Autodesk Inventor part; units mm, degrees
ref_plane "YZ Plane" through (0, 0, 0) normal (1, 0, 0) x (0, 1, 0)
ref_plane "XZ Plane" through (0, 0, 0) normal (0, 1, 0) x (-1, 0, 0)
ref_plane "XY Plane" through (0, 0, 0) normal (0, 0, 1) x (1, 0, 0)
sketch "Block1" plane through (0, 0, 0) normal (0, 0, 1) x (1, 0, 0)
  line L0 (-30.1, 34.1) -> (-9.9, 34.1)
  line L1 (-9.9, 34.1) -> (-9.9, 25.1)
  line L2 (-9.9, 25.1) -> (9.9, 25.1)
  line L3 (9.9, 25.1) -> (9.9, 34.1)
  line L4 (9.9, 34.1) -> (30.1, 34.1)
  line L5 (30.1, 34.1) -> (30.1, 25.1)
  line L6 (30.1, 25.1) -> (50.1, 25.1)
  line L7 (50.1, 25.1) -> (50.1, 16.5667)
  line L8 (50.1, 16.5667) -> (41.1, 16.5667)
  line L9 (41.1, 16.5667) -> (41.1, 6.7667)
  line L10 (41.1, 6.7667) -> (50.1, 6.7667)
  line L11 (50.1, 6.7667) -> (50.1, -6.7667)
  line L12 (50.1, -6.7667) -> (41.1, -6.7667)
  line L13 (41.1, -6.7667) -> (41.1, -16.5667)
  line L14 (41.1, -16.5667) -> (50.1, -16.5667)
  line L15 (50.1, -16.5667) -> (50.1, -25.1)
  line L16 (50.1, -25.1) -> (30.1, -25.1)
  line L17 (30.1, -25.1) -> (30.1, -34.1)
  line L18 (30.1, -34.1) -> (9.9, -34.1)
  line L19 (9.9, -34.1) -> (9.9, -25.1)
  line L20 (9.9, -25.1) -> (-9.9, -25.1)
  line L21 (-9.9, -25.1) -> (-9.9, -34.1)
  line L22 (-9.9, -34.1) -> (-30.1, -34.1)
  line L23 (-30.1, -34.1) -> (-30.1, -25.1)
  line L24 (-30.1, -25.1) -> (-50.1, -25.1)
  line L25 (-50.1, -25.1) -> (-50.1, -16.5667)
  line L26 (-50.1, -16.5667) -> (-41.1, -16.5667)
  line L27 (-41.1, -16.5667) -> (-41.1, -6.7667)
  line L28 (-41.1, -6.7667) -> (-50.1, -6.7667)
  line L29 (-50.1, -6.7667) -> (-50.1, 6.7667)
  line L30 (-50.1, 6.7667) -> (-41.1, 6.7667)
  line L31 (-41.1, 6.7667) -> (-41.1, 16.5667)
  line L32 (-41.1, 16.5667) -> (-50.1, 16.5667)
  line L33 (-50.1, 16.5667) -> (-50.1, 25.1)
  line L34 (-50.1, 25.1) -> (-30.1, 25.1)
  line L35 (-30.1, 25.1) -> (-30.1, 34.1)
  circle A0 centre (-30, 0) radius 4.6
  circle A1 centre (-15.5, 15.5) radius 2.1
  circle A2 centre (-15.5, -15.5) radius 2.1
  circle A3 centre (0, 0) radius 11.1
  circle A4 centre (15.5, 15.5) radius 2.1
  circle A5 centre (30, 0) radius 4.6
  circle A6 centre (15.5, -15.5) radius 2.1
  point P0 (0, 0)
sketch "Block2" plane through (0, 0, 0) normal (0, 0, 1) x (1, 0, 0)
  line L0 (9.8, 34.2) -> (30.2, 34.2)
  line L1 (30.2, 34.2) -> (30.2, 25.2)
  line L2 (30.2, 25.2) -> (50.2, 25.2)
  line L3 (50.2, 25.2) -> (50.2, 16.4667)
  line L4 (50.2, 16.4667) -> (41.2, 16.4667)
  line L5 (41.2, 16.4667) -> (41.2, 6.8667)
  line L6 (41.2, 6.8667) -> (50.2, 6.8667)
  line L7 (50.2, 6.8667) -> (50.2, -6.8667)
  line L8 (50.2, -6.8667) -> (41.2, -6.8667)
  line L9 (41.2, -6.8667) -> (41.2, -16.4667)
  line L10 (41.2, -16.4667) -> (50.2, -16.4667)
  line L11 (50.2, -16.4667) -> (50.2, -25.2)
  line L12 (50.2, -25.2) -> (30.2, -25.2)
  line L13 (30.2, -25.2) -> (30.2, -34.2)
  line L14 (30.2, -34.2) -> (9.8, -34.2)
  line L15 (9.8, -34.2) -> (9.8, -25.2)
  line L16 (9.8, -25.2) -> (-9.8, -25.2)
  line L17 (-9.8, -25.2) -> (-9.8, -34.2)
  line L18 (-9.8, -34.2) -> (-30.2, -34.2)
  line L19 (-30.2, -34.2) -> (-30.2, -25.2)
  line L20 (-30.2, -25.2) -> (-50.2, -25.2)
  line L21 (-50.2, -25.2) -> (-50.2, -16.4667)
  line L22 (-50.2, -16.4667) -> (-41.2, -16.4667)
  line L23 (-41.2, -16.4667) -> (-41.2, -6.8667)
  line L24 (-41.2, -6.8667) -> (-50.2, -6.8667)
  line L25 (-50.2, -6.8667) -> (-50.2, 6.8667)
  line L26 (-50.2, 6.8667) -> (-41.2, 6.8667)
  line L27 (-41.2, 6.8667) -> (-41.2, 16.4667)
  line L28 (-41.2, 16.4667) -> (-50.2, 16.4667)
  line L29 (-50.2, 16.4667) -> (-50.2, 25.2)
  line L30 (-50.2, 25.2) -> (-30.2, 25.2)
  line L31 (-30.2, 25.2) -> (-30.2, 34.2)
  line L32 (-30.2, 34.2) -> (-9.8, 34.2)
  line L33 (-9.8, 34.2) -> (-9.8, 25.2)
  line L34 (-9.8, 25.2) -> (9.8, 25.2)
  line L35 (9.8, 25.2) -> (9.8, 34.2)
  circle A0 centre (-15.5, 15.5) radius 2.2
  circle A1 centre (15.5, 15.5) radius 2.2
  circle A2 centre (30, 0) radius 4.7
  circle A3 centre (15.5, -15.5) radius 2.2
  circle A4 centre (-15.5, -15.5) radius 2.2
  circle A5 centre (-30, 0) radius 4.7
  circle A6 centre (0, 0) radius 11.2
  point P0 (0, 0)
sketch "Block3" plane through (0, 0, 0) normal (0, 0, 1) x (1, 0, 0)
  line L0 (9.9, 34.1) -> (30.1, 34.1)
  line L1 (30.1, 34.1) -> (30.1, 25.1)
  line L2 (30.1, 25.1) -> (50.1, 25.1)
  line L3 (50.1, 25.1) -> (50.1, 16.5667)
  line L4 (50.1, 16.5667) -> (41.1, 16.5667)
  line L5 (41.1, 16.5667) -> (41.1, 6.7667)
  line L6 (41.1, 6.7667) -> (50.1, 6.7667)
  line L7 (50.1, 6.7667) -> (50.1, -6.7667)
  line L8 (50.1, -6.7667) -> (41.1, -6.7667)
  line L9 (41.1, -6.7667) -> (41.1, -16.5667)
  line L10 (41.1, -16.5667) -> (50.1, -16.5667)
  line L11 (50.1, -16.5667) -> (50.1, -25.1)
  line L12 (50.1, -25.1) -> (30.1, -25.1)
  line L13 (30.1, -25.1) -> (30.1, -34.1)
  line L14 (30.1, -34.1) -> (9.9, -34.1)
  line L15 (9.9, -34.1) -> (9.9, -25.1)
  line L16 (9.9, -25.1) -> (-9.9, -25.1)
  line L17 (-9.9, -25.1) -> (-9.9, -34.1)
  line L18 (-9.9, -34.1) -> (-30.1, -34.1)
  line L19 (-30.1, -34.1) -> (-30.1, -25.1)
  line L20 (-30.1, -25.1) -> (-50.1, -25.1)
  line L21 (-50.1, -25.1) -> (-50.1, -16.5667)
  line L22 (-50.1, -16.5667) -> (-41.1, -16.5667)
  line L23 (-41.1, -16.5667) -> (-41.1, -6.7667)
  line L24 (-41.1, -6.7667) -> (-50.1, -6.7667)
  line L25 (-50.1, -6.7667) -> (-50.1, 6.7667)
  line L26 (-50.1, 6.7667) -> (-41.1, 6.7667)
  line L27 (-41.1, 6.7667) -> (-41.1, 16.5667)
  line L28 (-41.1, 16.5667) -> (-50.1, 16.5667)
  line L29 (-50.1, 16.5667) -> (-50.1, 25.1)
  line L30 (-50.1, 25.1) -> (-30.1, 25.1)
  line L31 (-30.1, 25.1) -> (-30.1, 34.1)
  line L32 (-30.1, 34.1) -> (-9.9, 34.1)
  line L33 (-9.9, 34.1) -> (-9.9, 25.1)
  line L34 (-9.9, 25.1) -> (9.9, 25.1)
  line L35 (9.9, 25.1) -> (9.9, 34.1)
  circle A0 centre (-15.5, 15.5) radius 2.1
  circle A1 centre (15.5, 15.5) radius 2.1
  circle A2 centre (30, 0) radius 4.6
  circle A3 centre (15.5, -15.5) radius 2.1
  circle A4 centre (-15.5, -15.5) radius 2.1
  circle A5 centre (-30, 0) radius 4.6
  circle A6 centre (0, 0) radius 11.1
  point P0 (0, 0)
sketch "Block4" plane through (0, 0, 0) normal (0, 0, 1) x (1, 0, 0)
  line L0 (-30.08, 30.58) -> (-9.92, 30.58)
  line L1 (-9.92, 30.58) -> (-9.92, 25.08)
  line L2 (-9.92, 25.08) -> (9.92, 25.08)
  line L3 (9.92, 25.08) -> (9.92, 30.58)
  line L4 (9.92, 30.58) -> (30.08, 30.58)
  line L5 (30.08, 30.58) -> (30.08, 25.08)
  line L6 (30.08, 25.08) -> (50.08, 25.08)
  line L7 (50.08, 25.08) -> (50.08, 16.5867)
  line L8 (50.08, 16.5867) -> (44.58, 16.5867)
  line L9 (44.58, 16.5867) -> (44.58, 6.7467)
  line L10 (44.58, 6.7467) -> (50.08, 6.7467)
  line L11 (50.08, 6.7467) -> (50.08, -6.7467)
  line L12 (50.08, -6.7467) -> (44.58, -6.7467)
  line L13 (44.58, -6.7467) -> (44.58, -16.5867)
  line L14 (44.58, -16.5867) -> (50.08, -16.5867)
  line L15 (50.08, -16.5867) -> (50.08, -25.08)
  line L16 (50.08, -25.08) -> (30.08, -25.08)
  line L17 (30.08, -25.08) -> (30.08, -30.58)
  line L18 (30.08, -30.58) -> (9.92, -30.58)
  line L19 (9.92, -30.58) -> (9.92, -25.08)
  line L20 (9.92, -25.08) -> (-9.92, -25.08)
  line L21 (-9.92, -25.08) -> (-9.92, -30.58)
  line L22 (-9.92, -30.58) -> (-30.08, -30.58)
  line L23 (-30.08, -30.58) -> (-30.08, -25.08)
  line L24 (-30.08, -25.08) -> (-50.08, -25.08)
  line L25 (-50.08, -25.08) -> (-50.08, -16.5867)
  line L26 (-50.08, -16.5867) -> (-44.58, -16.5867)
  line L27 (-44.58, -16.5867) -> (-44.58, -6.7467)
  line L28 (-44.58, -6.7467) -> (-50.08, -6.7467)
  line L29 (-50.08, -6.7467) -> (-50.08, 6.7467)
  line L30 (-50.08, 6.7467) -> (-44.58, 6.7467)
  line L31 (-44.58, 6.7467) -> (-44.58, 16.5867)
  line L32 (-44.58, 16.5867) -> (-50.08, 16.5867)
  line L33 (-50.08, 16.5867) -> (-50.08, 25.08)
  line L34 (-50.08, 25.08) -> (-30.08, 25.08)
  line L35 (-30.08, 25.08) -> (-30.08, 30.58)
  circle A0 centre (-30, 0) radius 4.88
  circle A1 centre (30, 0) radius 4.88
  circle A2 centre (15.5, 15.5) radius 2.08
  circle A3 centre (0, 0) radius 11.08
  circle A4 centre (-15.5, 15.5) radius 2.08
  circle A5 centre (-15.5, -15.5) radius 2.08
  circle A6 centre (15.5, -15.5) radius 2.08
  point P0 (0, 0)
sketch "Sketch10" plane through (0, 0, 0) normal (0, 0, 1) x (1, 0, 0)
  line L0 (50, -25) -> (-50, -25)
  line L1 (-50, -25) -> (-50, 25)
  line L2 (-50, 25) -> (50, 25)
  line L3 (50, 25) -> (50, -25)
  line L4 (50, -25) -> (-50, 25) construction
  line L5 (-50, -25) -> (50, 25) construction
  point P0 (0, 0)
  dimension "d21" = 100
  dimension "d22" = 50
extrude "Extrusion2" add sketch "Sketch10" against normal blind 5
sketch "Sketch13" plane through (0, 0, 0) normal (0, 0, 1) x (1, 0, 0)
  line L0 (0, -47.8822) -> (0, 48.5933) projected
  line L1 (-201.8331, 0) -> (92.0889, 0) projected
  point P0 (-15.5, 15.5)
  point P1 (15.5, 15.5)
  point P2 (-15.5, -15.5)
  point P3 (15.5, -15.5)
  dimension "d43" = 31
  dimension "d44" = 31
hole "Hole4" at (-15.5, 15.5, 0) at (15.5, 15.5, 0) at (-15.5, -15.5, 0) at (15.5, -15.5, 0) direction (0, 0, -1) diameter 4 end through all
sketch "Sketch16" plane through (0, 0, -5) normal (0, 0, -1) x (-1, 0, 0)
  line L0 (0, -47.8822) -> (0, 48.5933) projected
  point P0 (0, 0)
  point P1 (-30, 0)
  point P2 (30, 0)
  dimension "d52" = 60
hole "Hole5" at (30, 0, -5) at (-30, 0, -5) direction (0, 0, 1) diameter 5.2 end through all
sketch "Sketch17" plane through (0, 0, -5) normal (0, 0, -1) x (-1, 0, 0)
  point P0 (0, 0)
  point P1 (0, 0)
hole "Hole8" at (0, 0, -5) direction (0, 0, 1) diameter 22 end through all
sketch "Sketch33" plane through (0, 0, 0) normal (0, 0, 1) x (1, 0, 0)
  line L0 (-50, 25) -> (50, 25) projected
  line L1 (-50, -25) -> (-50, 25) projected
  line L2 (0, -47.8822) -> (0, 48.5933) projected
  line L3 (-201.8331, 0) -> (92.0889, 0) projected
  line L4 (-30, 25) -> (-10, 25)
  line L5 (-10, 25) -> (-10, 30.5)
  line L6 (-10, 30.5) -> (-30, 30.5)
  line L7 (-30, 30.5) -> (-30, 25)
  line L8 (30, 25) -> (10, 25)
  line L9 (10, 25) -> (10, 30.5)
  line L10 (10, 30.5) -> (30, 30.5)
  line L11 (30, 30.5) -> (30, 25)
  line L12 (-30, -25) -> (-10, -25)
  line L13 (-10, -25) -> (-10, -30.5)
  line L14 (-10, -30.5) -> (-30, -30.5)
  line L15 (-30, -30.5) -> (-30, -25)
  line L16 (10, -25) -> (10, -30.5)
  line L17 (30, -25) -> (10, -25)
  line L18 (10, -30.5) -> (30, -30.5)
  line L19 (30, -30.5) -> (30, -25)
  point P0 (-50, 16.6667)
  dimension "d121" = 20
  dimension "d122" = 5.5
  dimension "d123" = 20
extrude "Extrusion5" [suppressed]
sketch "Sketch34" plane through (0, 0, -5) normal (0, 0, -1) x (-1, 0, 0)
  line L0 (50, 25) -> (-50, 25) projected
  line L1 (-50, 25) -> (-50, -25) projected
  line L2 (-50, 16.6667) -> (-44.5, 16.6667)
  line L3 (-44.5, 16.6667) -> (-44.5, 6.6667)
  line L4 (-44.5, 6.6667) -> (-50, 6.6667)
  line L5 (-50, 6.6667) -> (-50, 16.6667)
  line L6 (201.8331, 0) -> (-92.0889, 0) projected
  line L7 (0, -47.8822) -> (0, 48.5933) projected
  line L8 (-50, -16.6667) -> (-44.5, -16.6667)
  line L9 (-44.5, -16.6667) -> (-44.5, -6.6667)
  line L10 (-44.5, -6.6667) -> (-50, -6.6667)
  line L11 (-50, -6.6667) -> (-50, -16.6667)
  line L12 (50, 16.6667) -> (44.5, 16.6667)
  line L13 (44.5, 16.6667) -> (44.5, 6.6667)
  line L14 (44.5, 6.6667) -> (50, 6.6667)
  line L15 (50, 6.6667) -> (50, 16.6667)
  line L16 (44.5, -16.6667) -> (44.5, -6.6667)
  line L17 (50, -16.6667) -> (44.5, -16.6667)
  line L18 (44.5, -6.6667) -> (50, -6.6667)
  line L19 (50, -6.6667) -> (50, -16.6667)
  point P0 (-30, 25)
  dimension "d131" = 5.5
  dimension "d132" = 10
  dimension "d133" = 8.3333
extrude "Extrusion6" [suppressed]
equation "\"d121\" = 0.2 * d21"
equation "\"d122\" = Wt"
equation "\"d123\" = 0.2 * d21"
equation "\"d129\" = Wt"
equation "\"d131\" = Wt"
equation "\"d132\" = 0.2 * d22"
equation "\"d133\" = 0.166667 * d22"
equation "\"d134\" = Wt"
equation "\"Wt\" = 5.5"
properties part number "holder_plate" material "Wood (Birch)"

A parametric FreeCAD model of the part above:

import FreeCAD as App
import Part
import Sketcher
from FreeCAD import Vector
Q = App.Units.Quantity

doc = App.newDocument("Part")
params = doc.addObject("Spreadsheet::Sheet", "Params")
for row, (alias, value) in enumerate([
    ("sketch1_width", "100 mm"),
    ("sketch1_height", "50 mm"),
    ("pad1_length", "5 mm"),
    ("sketch2_diameter", "4 mm"),
    ("hole_diameter", "4 mm"),
    ("sketch3_diameter", "5.2 mm"),
    ("hole2_diameter", "5.2 mm"),
    ("sketch4_diameter", "22 mm"),
    ("hole3_diameter", "22 mm"),
], start=1):
    params.set(f"A{row}", alias)
    params.set(f"B{row}", "=" + value)
    params.setAlias(f"B{row}", alias)

body = doc.addObject("PartDesign::Body", "Body")

# Sketch on XY plane
sketch1 = body.newObject("Sketcher::SketchObject", "Sketch")
sketch1.AttachmentSupport = (doc.getObject("XY_Plane"), [""])
sketch1.MapMode = "FlatFace"
sketch1.addGeometry([
    Part.LineSegment(Vector(-50, -25, 0), Vector(50, -25, 0)),
    Part.LineSegment(Vector(50, -25, 0), Vector(50, 25, 0)),
    Part.LineSegment(Vector(50, 25, 0), Vector(-50, 25, 0)),
    Part.LineSegment(Vector(-50, 25, 0), Vector(-50, -25, 0)),
], False)
sketch1.addConstraint([
    Sketcher.Constraint("Coincident", 0, 2, 1, 1),
    Sketcher.Constraint("Coincident", 1, 2, 2, 1),
    Sketcher.Constraint("Coincident", 2, 2, 3, 1),
    Sketcher.Constraint("Coincident", 3, 2, 0, 1),
    Sketcher.Constraint("Horizontal", 0),
    Sketcher.Constraint("Vertical", 1),
    Sketcher.Constraint("Horizontal", 2),
    Sketcher.Constraint("Vertical", 3),
    Sketcher.Constraint("Symmetric", 0, 2, 2, 2, -1, 1),
    Sketcher.Constraint("DistanceX", 0, 1, 0, 2, Q("100 mm")),
    Sketcher.Constraint("DistanceY", 1, 1, 1, 2, Q("50 mm")),
])
sketch1.setExpression("Constraints[9]", "Params.sketch1_width")
sketch1.setExpression("Constraints[10]", "Params.sketch1_height")
pad1 = body.newObject("PartDesign::Pad", "Pad")
pad1.Profile = sketch1
pad1.setExpression("Length", "Params.pad1_length")
pad1.Reversed = True

# Sketch on XY plane
sketch2 = body.newObject("Sketcher::SketchObject", "Sketch001")
sketch2.AttachmentSupport = (doc.getObject("XY_Plane"), [""])
sketch2.MapMode = "FlatFace"
sketch2.addGeometry([
    Part.Circle(Vector(-15.5, 15.5, 0), Vector(0, 0, 1), 2),
    Part.Circle(Vector(15.5, 15.5, 0), Vector(0, 0, 1), 2),
    Part.Circle(Vector(-15.5, -15.5, 0), Vector(0, 0, 1), 2),
    Part.Circle(Vector(15.5, -15.5, 0), Vector(0, 0, 1), 2),
], False)
sketch2.addConstraint([
    Sketcher.Constraint("Equal", 0, 1),
    Sketcher.Constraint("Equal", 1, 2),
    Sketcher.Constraint("Equal", 2, 3),
    Sketcher.Constraint("Symmetric", 1, 3, 2, 3, -1, 1),
    Sketcher.Constraint("Symmetric", 0, 3, 3, 3, -1, 1),
    Sketcher.Constraint("Symmetric", 0, 3, 1, 3, -2),
    Sketcher.Constraint("Diameter", 0, Q("4 mm")),
    Sketcher.Constraint("DistanceX", 0, 3, 1, 3, Q("31 mm")),
    Sketcher.Constraint("DistanceY", 2, 3, 0, 3, Q("31 mm")),
])
sketch2.setExpression("Constraints[6]", "Params.sketch2_diameter")
doc.recompute()
hole = body.newObject("PartDesign::Hole", "Hole")
hole.Profile = sketch2
hole.ThreadType = "None"
hole.setExpression("Diameter", "Params.hole_diameter")
hole.DepthType = "ThroughAll"

# Sketch on XY plane
sketch3 = body.newObject("Sketcher::SketchObject", "Sketch002")
sketch3.AttachmentSupport = (doc.getObject("XY_Plane"), [""])
sketch3.MapMode = "FlatFace"
sketch3.AttachmentOffset = App.Placement(Vector(0, 0, -5), App.Rotation())
sketch3.addGeometry([
    Part.Circle(Vector(30, 0, 0), Vector(0, 0, 1), 2.6),
    Part.Circle(Vector(-30, 0, 0), Vector(0, 0, 1), 2.6),
], False)
sketch3.addConstraint([
    Sketcher.Constraint("Equal", 0, 1),
    Sketcher.Constraint("Symmetric", 0, 3, 1, 3, -1, 1),
    Sketcher.Constraint("PointOnObject", 0, 3, -1),
    Sketcher.Constraint("Diameter", 0, Q("5.2 mm")),
    Sketcher.Constraint("DistanceX", -1, 1, 0, 3, Q("30 mm")),
])
sketch3.setExpression("Constraints[3]", "Params.sketch3_diameter")
doc.recompute()
hole2 = body.newObject("PartDesign::Hole", "Hole001")
hole2.Profile = sketch3
hole2.ThreadType = "None"
hole2.setExpression("Diameter", "Params.hole2_diameter")
hole2.DepthType = "ThroughAll"
hole2.Reversed = True

# Sketch on XY plane
sketch4 = body.newObject("Sketcher::SketchObject", "Sketch003")
sketch4.AttachmentSupport = (doc.getObject("XY_Plane"), [""])
sketch4.MapMode = "FlatFace"
sketch4.AttachmentOffset = App.Placement(Vector(0, 0, -5), App.Rotation())
sketch4.addGeometry(Part.Circle(Vector(0, 0, 0), Vector(0, 0, 1), 11), False)
sketch4.addConstraint([
    Sketcher.Constraint("Coincident", 0, 3, -1, 1),
    Sketcher.Constraint("Diameter", 0, Q("22 mm")),
])
sketch4.setExpression("Constraints[1]", "Params.sketch4_diameter")
doc.recompute()
hole3 = body.newObject("PartDesign::Hole", "Hole002")
hole3.Profile = sketch4
hole3.ThreadType = "None"
hole3.setExpression("Diameter", "Params.hole3_diameter")
hole3.DepthType = "ThroughAll"
hole3.Reversed = True

doc.recompute()
